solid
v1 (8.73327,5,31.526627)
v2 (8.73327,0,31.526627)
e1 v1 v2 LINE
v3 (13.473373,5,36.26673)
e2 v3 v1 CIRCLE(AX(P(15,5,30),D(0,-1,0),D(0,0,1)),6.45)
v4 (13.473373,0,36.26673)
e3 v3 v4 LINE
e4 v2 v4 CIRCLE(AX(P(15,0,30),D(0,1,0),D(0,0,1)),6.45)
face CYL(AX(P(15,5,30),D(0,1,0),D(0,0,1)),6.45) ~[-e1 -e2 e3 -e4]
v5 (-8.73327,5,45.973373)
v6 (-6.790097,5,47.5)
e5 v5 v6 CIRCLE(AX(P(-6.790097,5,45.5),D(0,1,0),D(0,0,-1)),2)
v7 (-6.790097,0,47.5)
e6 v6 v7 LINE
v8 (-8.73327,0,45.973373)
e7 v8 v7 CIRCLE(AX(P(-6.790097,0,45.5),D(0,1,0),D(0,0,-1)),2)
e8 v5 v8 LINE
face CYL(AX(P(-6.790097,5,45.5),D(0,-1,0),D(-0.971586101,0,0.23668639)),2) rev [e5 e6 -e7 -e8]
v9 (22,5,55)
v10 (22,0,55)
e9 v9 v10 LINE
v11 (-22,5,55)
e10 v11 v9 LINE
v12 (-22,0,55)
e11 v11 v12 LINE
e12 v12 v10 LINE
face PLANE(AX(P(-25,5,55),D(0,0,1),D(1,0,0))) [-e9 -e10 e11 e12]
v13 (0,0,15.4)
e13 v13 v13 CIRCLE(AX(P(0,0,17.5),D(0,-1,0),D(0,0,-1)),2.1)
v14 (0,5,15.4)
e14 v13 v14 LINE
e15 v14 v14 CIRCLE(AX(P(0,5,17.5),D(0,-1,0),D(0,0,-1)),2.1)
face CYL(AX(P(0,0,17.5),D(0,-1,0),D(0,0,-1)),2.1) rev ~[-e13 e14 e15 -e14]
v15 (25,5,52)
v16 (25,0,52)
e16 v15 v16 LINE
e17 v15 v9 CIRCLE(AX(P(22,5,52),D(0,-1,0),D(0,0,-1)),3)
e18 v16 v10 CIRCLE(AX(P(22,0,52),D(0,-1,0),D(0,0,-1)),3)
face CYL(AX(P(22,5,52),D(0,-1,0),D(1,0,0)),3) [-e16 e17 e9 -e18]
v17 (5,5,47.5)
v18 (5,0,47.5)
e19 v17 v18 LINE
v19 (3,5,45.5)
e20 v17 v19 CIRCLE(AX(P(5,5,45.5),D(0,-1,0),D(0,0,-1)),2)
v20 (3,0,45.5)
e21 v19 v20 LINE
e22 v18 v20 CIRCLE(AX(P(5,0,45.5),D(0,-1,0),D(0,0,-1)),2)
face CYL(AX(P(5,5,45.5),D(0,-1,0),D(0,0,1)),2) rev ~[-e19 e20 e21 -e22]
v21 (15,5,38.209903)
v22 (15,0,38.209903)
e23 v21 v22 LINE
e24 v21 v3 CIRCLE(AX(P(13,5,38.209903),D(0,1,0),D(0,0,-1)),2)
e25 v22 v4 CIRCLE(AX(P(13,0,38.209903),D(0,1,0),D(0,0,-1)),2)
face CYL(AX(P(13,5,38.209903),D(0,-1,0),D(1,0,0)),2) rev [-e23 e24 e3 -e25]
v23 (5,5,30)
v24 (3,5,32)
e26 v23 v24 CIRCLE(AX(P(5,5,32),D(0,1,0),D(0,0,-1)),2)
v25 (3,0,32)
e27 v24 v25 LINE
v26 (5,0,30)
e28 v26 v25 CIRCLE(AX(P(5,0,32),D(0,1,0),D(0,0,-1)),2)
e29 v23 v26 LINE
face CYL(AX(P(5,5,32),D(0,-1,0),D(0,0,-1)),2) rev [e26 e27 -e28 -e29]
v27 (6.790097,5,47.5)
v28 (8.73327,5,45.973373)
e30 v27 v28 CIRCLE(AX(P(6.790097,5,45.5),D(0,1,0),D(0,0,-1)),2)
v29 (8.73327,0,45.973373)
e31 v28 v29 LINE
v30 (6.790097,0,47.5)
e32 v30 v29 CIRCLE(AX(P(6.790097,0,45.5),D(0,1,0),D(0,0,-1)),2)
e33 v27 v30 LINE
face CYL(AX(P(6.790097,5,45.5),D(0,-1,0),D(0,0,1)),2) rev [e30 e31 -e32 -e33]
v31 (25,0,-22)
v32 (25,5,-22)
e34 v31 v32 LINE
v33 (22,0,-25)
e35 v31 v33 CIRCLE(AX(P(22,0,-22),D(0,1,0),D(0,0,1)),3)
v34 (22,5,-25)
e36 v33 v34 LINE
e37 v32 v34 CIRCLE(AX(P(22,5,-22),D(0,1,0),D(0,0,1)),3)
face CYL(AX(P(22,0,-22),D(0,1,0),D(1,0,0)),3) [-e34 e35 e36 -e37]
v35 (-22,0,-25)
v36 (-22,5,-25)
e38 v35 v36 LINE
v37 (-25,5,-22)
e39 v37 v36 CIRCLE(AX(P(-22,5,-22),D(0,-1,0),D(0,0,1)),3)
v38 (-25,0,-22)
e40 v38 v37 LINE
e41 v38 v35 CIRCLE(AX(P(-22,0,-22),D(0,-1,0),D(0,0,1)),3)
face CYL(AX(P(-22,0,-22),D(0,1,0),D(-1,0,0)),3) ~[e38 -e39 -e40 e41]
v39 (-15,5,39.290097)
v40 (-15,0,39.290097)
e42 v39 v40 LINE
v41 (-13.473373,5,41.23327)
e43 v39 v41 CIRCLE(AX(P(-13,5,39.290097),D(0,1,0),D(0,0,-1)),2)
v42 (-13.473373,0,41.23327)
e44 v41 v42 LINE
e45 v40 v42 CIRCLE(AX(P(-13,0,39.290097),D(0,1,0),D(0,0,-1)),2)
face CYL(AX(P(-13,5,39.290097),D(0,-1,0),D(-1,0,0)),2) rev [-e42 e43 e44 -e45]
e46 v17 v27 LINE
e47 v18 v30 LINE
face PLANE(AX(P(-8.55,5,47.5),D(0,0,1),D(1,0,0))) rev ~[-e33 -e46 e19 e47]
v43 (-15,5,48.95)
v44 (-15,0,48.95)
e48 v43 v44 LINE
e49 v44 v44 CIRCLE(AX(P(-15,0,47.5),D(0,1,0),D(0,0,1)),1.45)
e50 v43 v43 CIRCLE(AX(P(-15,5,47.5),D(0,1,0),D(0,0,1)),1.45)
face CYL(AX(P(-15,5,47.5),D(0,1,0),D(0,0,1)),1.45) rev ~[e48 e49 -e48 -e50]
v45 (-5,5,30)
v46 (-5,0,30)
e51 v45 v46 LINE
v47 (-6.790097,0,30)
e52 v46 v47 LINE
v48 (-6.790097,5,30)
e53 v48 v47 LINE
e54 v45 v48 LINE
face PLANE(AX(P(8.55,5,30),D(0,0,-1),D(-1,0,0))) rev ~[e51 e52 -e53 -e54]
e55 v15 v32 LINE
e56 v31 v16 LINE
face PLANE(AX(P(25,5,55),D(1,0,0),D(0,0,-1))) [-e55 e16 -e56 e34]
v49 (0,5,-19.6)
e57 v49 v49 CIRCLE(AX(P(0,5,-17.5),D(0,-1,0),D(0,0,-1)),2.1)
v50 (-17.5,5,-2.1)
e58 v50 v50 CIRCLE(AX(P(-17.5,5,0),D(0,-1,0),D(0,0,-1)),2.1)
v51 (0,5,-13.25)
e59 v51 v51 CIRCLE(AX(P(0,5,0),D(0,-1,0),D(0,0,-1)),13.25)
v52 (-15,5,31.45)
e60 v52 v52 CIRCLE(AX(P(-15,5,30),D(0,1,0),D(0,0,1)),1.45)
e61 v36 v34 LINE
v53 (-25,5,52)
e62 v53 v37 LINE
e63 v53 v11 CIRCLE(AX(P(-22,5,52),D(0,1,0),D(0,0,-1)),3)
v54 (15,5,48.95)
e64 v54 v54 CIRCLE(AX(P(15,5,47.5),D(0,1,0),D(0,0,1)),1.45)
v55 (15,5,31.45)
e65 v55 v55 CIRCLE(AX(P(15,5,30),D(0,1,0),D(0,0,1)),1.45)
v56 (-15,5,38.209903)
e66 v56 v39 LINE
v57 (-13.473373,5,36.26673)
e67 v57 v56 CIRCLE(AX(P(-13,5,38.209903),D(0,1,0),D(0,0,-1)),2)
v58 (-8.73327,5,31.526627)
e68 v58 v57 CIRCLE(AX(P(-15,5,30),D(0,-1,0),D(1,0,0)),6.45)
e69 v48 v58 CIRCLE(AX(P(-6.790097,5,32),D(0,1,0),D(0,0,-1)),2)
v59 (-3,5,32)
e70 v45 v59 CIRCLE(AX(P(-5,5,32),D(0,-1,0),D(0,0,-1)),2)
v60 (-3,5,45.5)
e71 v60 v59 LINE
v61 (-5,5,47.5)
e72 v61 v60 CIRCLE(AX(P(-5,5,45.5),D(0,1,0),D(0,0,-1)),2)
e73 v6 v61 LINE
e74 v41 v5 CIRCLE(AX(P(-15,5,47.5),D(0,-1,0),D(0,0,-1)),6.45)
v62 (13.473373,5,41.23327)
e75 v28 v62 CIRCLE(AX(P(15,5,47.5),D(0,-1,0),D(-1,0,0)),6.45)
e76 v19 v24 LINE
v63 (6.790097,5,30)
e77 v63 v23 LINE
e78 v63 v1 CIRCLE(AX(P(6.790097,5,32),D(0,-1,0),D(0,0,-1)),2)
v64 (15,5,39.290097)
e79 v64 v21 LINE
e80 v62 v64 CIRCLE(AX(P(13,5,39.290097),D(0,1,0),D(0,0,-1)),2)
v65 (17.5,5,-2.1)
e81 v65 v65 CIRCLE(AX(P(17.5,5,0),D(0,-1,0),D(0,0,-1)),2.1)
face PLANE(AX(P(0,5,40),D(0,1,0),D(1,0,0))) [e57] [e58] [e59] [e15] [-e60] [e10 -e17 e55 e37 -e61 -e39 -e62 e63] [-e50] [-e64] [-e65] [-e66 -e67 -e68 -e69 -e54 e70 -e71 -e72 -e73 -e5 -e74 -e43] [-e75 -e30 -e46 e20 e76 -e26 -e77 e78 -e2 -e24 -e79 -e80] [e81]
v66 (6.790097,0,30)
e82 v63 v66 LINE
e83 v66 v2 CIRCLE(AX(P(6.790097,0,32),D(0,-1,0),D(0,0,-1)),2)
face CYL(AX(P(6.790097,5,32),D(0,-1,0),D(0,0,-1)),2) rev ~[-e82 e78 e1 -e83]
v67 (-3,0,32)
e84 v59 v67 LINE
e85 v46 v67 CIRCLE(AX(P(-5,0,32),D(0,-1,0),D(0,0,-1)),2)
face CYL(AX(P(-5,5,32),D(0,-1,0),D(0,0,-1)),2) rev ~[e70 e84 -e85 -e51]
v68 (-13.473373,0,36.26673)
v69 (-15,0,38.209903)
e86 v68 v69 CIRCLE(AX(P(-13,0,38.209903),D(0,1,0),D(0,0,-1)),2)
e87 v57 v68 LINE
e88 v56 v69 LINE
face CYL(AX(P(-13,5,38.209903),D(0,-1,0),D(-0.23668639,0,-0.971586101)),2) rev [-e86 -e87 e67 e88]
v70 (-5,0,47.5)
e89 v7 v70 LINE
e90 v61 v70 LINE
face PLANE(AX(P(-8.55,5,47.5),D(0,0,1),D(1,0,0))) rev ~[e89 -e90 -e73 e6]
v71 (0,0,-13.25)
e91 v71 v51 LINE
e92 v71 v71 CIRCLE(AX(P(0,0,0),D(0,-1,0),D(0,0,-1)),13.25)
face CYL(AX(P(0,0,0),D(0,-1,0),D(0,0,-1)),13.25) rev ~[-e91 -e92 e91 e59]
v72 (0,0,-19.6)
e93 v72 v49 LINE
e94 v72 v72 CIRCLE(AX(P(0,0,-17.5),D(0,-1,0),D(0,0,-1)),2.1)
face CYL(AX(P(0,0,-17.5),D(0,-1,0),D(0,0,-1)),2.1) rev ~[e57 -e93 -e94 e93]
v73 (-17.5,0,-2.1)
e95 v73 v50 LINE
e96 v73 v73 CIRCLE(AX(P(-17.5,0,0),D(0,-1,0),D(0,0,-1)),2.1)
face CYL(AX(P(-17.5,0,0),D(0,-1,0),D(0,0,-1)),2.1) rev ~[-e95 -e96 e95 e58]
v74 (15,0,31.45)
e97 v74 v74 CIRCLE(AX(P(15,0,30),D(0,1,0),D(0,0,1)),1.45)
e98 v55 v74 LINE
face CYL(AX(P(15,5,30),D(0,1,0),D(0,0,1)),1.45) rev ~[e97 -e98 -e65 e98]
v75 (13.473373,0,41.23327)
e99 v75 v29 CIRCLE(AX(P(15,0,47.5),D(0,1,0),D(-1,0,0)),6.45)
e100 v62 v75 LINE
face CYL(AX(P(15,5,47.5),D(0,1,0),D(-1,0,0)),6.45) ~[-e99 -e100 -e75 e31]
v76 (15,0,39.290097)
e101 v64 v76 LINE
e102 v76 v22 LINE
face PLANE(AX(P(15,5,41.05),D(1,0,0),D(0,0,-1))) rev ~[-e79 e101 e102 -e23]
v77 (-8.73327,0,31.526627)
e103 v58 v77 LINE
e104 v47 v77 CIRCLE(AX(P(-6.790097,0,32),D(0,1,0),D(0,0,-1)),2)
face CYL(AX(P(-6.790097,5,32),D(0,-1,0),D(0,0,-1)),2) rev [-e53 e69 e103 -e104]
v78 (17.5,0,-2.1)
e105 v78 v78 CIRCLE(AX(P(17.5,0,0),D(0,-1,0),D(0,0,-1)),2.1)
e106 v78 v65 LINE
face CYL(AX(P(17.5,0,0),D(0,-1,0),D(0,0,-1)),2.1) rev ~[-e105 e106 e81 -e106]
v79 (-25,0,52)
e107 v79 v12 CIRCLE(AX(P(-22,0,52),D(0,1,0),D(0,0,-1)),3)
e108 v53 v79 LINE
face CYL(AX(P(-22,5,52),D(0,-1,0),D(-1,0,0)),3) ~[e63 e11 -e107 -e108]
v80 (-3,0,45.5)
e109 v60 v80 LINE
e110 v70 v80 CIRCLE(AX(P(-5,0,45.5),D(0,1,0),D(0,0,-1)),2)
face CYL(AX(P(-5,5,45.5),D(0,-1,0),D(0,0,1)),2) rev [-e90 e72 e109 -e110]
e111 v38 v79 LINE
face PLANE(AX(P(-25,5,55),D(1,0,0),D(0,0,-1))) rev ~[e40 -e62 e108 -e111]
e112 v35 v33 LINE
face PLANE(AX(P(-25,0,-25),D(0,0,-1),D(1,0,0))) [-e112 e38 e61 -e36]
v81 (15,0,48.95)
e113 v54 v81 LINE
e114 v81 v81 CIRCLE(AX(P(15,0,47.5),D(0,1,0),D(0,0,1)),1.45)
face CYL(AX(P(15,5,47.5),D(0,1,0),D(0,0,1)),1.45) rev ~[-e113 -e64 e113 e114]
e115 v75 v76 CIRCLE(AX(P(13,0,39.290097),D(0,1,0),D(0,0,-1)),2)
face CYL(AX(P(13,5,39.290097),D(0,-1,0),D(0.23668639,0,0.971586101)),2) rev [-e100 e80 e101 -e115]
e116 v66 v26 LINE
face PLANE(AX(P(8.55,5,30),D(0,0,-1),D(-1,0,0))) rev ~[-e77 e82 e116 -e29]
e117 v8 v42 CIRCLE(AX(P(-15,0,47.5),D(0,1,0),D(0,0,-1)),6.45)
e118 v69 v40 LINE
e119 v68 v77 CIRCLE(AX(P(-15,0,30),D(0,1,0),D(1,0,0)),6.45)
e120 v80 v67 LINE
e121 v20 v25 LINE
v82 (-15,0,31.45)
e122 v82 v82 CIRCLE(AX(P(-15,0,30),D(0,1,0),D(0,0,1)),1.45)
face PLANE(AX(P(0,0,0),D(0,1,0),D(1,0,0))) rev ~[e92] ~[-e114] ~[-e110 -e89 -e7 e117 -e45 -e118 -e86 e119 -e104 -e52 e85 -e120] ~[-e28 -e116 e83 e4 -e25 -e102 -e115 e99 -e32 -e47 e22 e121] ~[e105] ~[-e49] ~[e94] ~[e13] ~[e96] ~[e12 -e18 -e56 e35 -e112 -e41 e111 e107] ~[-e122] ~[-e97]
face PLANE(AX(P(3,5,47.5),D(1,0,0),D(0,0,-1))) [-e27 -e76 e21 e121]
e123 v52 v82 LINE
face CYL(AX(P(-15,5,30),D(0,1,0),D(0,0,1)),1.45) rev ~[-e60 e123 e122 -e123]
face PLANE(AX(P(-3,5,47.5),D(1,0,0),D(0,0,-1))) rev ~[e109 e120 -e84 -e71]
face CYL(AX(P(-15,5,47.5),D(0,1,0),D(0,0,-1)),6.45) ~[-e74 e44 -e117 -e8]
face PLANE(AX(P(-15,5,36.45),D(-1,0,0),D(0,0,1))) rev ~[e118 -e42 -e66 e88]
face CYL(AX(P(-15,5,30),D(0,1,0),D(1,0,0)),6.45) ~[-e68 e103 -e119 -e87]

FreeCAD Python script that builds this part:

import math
import FreeCAD as App
import Part
import Sketcher
from FreeCAD import Vector
Q = App.Units.Quantity


def edges_at(feature, points):
    """Names of the edges that pass closest to the given points."""
    edges = feature.Shape.Edges
    near = lambda p: min(range(len(edges)), key=lambda i: edges[i].distToShape(Part.Vertex(*p))[0])
    return sorted({f"Edge{near(p) + 1}" for p in points})


def add_polygon(sketch, points):
    """Adds a closed chain of lines whose ends are joined by coincident constraints."""
    first, n = sketch.GeometryCount, len(points)
    for a, b in zip(points, points[1:] + points[:1]):
        sketch.addGeometry(Part.LineSegment(App.Vector(*a, 0), App.Vector(*b, 0)), False)
    for i in range(n):
        sketch.addConstraint(Sketcher.Constraint("Coincident", first + i, 2, first + (i + 1) % n, 1))

doc = App.newDocument("Part")
body = doc.addObject("PartDesign::Body", "Body")

# Sketch on XZ plane
sketch1 = body.newObject("Sketcher::SketchObject", "Sketch")
sketch1.AttachmentSupport = (doc.getObject("XZ_Plane"), [""])
sketch1.MapMode = "FlatFace"
add_polygon(sketch1, [(-25, -25), (-25, 25), (25, 25), (25, -25)])  # lines 0-3
sketch1.addGeometry(Part.Circle(Vector(0, 0, 0), Vector(0, 0, 1), 21), False)  # 4
sketch1.addConstraint(Sketcher.Constraint("Vertical", 0))
sketch1.addConstraint(Sketcher.Constraint("Horizontal", 1))
sketch1.addConstraint(Sketcher.Constraint("Vertical", 2))
sketch1.addConstraint(Sketcher.Constraint("Horizontal", 3))
sketch1.addConstraint(Sketcher.Constraint("Coincident", 4, 3, -1, 1))
sketch1.addConstraint(Sketcher.Constraint("Symmetric", 0, 2, 2, 2, -1, 1))
sketch1.addConstraint(Sketcher.Constraint("Equal", 3, 0))
sketch1.addConstraint(Sketcher.Constraint("Diameter", 4, Q("42.1 mm")))
sketch1.addConstraint(Sketcher.Constraint("DistanceX", 1, 1, 1, 2, Q("50 mm")))
pad1 = body.newObject("PartDesign::Pad", "Pad")
pad1.Profile = sketch1
pad1.Length = 5
pad1.Reversed = True

# Sketch on XZ plane
sketch2 = body.newObject("Sketcher::SketchObject", "Sketch001")
sketch2.AttachmentSupport = (doc.getObject("XZ_Plane"), [""])
sketch2.MapMode = "FlatFace"
sketch2.AttachmentOffset = App.Placement(Vector(0, 0, -5), App.Rotation())
add_polygon(sketch2, [(-25, 25), (-25, 55), (25, 55), (25, 25)])  # lines 0-3
sketch2.addGeometry(Part.Circle(Vector(-15, 47.5, 0), Vector(0, 0, 1), 1.4), False)  # 4
sketch2.addGeometry(Part.Circle(Vector(15, 47.5, 0), Vector(0, 0, 1), 1.4), False)  # 5
sketch2.addConstraint(Sketcher.Constraint("Vertical", 0))
sketch2.addConstraint(Sketcher.Constraint("Horizontal", 1))
sketch2.addConstraint(Sketcher.Constraint("Vertical", 2))
sketch2.addConstraint(Sketcher.Constraint("Horizontal", 3))
sketch2.addConstraint(Sketcher.Constraint("Equal", 4, 5))
sketch2.addConstraint(Sketcher.Constraint("Symmetric", 4, 3, 5, 3, -2))
sketch2.addConstraint(Sketcher.Constraint("Diameter", 4, Q("2.9 mm")))
sketch2.addConstraint(Sketcher.Constraint("DistanceX", 1, 1, 1, 2, Q("50 mm")))
sketch2.addConstraint(Sketcher.Constraint("DistanceY", 0, 1, 0, 2, Q("30 mm")))
sketch2.addConstraint(Sketcher.Constraint("DistanceX", 4, 3, -1, 1, Q("15 mm")))
sketch2.addConstraint(Sketcher.Constraint("DistanceX", 0, 2, -1, 1, Q("25 mm")))
sketch2.addConstraint(Sketcher.Constraint("DistanceY", -1, 1, 0, 2, Q("55 mm")))
sketch2.addConstraint(Sketcher.Constraint("DistanceY", -1, 1, 4, 3, Q("47.5 mm")))
pad2 = body.newObject("PartDesign::Pad", "Pad001")
pad2.Profile = sketch2
pad2.Length = 5
doc.recompute()

fillet = body.newObject("PartDesign::Fillet", "Fillet")
fillet.Base = (pad2, edges_at(pad2, [
    (25, 2.5, 55),
    (-25, 2.5, 55),
    (-25, 2.5, -25),
    (25, 2.5, -25),
]))
fillet.Radius = 3

# Sketch on XZ plane
sketch3 = body.newObject("Sketcher::SketchObject", "Sketch002")
sketch3.AttachmentSupport = (doc.getObject("XZ_Plane"), [""])
sketch3.MapMode = "FlatFace"
sketch3.addGeometry(Part.Circle(Vector(0, 0, 0), Vector(0, 0, 1), 21), False)
sketch3.addConstraint(Sketcher.Constraint("Coincident", 0, 3, -1, 1))
sketch3.addConstraint(Sketcher.Constraint("Diameter", 0, Q("42.1 mm")))
pad3 = body.newObject("PartDesign::Pad", "Pad002")
pad3.Profile = sketch3
pad3.Length = 5
pad3.Reversed = True

# Sketch on XZ plane
sketch4 = body.newObject("Sketcher::SketchObject", "Sketch003")
sketch4.AttachmentSupport = (doc.getObject("XZ_Plane"), [""])
sketch4.MapMode = "FlatFace"
sketch4.addGeometry(Part.Circle(Vector(0, 0, 0), Vector(0, 0, 1), 13.2), False)
sketch4.addGeometry(Part.Circle(Vector(0, 17.5, 0), Vector(0, 0, 1), 2.1), False)
sketch4.addGeometry(Part.Circle(Vector(17.5, 0, 0), Vector(0, 0, 1), 2.1), False)
sketch4.addGeometry(Part.Circle(Vector(0, -17.5, 0), Vector(0, 0, 1), 2.1), False)
sketch4.addGeometry(Part.Circle(Vector(-17.5, 0, 0), Vector(0, 0, 1), 2.1), False)
sketch4.addConstraint(Sketcher.Constraint("Coincident", 0, 3, -1, 1))
sketch4.addConstraint(Sketcher.Constraint("Equal", 1, 2))
sketch4.addConstraint(Sketcher.Constraint("Equal", 2, 3))
sketch4.addConstraint(Sketcher.Constraint("Equal", 3, 4))
sketch4.addConstraint(Sketcher.Constraint("Symmetric", 1, 3, 3, 3, -1, 1))
sketch4.addConstraint(Sketcher.Constraint("Symmetric", 2, 3, 4, 3, -1, 1))
sketch4.addConstraint(Sketcher.Constraint("PointOnObject", 1, 3, -2))
sketch4.addConstraint(Sketcher.Constraint("PointOnObject", 2, 3, -1))
sketch4.addConstraint(Sketcher.Constraint("Diameter", 0, Q("26.5 mm")))
sketch4.addConstraint(Sketcher.Constraint("Diameter", 1, Q("4.2 mm")))
sketch4.addConstraint(Sketcher.Constraint("DistanceY", 3, 3, 1, 3, Q("35 mm")))
sketch4.addConstraint(Sketcher.Constraint("DistanceX", 4, 3, 2, 3, Q("35 mm")))
pocket1 = body.newObject("PartDesign::Pocket", "Pocket")
pocket1.Profile = sketch4
pocket1.Type = "ThroughAll"

# Sketch on XZ plane
sketch5 = body.newObject("Sketcher::SketchObject", "Sketch004")
sketch5.AttachmentSupport = (doc.getObject("XZ_Plane"), [""])
sketch5.MapMode = "FlatFace"
sketch5.AttachmentOffset = App.Placement(Vector(0, 0, -5), App.Rotation())
sketch5.addGeometry(Part.Circle(Vector(-15, 30, 0), Vector(0, 0, 1), 1.4), False)
sketch5.addGeometry(Part.Circle(Vector(15, 30, 0), Vector(0, 0, 1), 1.4), False)
sketch5.addConstraint(Sketcher.Constraint("Equal", 0, 1))
sketch5.addConstraint(Sketcher.Constraint("Symmetric", 0, 3, 1, 3, -2))
sketch5.addConstraint(Sketcher.Constraint("Diameter", 0, Q("2.9 mm")))
sketch5.addConstraint(Sketcher.Constraint("DistanceX", 0, 3, -1, 1, Q("15 mm")))
sketch5.addConstraint(Sketcher.Constraint("DistanceY", -1, 1, 0, 3, Q("30 mm")))
pocket2 = body.newObject("PartDesign::Pocket", "Pocket001")
pocket2.Profile = sketch5
pocket2.Type = "ThroughAll"
pocket2.Reversed = True

# Sketch on XZ plane
sketch6 = body.newObject("Sketcher::SketchObject", "Sketch005")
sketch6.AttachmentSupport = (doc.getObject("XZ_Plane"), [""])
sketch6.MapMode = "FlatFace"
sketch6.AttachmentOffset = App.Placement(Vector(0, 0, -5), App.Rotation())
sketch6.addGeometry(Part.LineSegment(Vector(8.6, 30, 0), Vector(-8.6, 30, 0)), False)
sketch6.addGeometry(Part.ArcOfCircle(Part.Circle(Vector(-15, 30, 0), Vector(0, 0, 1), 6.4), math.radians(0), math.radians(90)), False)
sketch6.addGeometry(Part.LineSegment(Vector(-15, 36.5, 0), Vector(-15, 41, 0)), False)
sketch6.addGeometry(Part.ArcOfCircle(Part.Circle(Vector(-15, 47.5, 0), Vector(0, 0, 1), 6.4), math.radians(-90), math.radians(0)), False)
sketch6.addGeometry(Part.LineSegment(Vector(-8.6, 47.5, 0), Vector(8.6, 47.5, 0)), False)
sketch6.addGeometry(Part.ArcOfCircle(Part.Circle(Vector(15, 47.5, 0), Vector(0, 0, 1), 6.4), math.radians(180), math.radians(270)), False)
sketch6.addGeometry(Part.LineSegment(Vector(15, 41, 0), Vector(15, 36.5, 0)), False)
sketch6.addGeometry(Part.ArcOfCircle(Part.Circle(Vector(15, 30, 0), Vector(0, 0, 1), 6.4), math.radians(90), math.radians(180)), False)
sketch6.addConstraint(Sketcher.Constraint("Coincident", 0, 2, 1, 1))
sketch6.addConstraint(Sketcher.Constraint("Coincident", 1, 2, 2, 1))
sketch6.addConstraint(Sketcher.Constraint("Coincident", 2, 2, 3, 1))
sketch6.addConstraint(Sketcher.Constraint("Coincident", 3, 2, 4, 1))
sketch6.addConstraint(Sketcher.Constraint("Coincident", 4, 2, 5, 1))
sketch6.addConstraint(Sketcher.Constraint("Coincident", 5, 2, 6, 1))
sketch6.addConstraint(Sketcher.Constraint("Coincident", 6, 2, 7, 1))
sketch6.addConstraint(Sketcher.Constraint("Coincident", 7, 2, 0, 1))
sketch6.addConstraint(Sketcher.Constraint("Horizontal", 0))
sketch6.addConstraint(Sketcher.Constraint("Vertical", 2))
sketch6.addConstraint(Sketcher.Constraint("Horizontal", 4))
sketch6.addConstraint(Sketcher.Constraint("Vertical", 6))
sketch6.addConstraint(Sketcher.Constraint("Equal", 1, 3))
sketch6.addConstraint(Sketcher.Constraint("Equal", 3, 5))
sketch6.addConstraint(Sketcher.Constraint("Equal", 5, 7))
sketch6.addConstraint(Sketcher.Constraint("Symmetric", 3, 3, 5, 3, -2))
sketch6.addConstraint(Sketcher.Constraint("Symmetric", 1, 3, 7, 3, -2))
sketch6.addConstraint(Sketcher.Constraint("Horizontal", 7, 3, 0, 2))
sketch6.addConstraint(Sketcher.Constraint("Horizontal", 5, 3, 3, 2))
sketch6.addConstraint(Sketcher.Constraint("Vertical", 1, 3, 3, 3))
sketch6.addConstraint(Sketcher.Constraint("Vertical", 3, 3, 1, 2))
sketch6.addConstraint(Sketcher.Constraint("Vertical", 7, 3, 5, 2))
sketch6.addConstraint(Sketcher.Constraint("Radius", 1, Q("6.45 mm")))
sketch6.addConstraint(Sketcher.Constraint("DistanceX", 0, 2, 0, 1, Q("17.1 mm")))
sketch6.addConstraint(Sketcher.Constraint("DistanceY", 2, 1, 2, 2, Q("4.6 mm")))
sketch6.addConstraint(Sketcher.Constraint("DistanceY", -1, 1, 1, 3, Q("30 mm")))
pocket3 = body.newObject("PartDesign::Pocket", "Pocket002")
pocket3.Profile = sketch6
pocket3.Type = "ThroughAll"
pocket3.Reversed = True

# Sketch on XZ plane
sketch7 = body.newObject("Sketcher::SketchObject", "Sketch006")
sketch7.AttachmentSupport = (doc.getObject("XZ_Plane"), [""])
sketch7.MapMode = "FlatFace"
sketch7.AttachmentOffset = App.Placement(Vector(0, 0, -5), App.Rotation())
add_polygon(sketch7, [(-3, 30), (-3, 48), (3, 48), (3, 30)])  # lines 0-3
sketch7.addConstraint(Sketcher.Constraint("Vertical", 0))
sketch7.addConstraint(Sketcher.Constraint("Horizontal", 1))
sketch7.addConstraint(Sketcher.Constraint("Vertical", 2))
sketch7.addConstraint(Sketcher.Constraint("Horizontal", 3))
sketch7.addConstraint(Sketcher.Constraint("DistanceX", 1, 1, 1, 2, Q("6 mm")))
sketch7.addConstraint(Sketcher.Constraint("DistanceY", 0, 1, 0, 2, Q("17.5 mm")))
sketch7.addConstraint(Sketcher.Constraint("DistanceX", 0, 2, -1, 1, Q("3 mm")))
sketch7.addConstraint(Sketcher.Constraint("DistanceY", -1, 1, 2, 2, Q("30 mm")))
pad4 = body.newObject("PartDesign::Pad", "Pad003")
pad4.Profile = sketch7
pad4.Length = 5
doc.recompute()

fillet2 = body.newObject("PartDesign::Fillet", "Fillet001")
fillet2.Base = (pad4, edges_at(pad4, [
    (-8.55, 2.5, 47.5),
    (-15, 2.5, 41.05),
    (-15, 2.5, 36.45),
    (-8.55, 2.5, 30),
    (8.55, 2.5, 30),
    (15, 2.5, 36.45),
    (15, 2.5, 41.05),
    (8.55, 2.5, 47.5),
    (-3, 2.5, 30),
    (3, 2.5, 30),
    (3, 2.5, 47.5),
    (-3, 2.5, 47.5),
]))
fillet2.Radius = 2

doc.recompute()
